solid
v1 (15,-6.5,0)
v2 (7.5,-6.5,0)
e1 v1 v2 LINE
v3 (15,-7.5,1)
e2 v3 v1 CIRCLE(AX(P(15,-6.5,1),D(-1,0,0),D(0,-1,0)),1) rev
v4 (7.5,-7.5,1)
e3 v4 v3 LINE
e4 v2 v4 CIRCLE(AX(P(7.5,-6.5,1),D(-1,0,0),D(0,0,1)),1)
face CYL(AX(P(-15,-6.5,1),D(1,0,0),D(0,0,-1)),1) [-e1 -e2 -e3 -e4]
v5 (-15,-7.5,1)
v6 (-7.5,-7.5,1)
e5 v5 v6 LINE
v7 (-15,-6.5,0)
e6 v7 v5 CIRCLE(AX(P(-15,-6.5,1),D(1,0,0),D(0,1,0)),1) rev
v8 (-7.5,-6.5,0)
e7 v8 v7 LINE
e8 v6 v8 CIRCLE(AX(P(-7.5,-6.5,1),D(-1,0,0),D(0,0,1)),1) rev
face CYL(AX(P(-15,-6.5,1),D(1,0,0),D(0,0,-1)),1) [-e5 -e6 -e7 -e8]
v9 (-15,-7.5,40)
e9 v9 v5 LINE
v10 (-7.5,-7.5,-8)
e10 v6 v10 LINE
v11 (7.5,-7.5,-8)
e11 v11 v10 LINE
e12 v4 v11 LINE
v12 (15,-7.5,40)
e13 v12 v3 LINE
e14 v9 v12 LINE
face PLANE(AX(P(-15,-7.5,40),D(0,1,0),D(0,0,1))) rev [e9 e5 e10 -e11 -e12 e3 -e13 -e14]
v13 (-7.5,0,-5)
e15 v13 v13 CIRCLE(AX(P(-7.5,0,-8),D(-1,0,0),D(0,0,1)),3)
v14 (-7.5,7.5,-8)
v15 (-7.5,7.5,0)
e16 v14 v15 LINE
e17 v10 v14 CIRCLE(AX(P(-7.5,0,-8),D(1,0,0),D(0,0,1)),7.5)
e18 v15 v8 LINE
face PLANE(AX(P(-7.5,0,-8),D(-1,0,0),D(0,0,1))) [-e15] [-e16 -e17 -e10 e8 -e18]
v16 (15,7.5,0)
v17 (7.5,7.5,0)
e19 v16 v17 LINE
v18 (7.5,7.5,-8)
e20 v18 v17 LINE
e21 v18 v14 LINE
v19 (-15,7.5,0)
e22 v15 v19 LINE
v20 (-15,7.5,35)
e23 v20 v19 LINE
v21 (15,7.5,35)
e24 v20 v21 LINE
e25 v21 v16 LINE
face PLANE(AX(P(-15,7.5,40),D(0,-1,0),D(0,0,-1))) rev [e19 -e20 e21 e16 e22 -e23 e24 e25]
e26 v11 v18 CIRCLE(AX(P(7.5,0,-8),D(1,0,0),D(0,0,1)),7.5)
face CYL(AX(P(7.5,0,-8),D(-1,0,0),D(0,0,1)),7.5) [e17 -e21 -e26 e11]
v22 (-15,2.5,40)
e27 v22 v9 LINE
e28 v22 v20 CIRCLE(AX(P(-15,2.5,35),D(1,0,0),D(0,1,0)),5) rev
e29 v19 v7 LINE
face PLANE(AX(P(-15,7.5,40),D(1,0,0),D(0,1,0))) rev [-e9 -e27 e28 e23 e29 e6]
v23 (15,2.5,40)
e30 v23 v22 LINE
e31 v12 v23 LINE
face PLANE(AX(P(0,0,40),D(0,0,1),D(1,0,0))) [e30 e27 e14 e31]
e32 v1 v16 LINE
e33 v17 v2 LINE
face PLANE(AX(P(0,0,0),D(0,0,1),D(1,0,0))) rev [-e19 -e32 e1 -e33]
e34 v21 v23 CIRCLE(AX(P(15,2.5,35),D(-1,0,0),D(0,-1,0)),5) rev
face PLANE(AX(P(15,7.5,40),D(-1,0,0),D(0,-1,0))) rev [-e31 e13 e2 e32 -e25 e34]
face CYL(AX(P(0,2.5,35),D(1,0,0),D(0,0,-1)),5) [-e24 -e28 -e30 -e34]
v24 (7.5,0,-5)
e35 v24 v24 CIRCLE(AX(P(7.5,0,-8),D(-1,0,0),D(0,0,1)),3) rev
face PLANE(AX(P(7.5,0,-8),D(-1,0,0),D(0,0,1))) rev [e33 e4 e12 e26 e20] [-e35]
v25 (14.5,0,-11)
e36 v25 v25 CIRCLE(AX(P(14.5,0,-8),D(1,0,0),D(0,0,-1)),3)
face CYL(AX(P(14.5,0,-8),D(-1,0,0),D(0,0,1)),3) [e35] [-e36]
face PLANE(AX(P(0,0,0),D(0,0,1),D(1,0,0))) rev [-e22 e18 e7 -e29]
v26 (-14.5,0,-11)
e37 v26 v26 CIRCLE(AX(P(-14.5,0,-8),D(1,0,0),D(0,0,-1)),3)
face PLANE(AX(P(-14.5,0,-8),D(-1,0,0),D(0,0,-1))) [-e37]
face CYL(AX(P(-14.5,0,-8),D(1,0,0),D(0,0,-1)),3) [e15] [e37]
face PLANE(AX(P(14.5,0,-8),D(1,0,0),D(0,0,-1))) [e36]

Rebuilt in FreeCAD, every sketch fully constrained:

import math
import FreeCAD as App
import Part
import Sketcher

V = App.Vector
Q = App.Units.Quantity


def edges_at(feature, points):
    """Names of the edges that pass closest to the given points."""
    edges = feature.Shape.Edges
    near = lambda p: min(range(len(edges)), key=lambda i: edges[i].distToShape(Part.Vertex(*p))[0])
    return sorted({f"Edge{near(p) + 1}" for p in points})


def add_polygon(sketch, points):
    """Adds a closed chain of lines whose ends are joined by coincident constraints."""
    first, n = sketch.GeometryCount, len(points)
    for a, b in zip(points, points[1:] + points[:1]):
        sketch.addGeometry(Part.LineSegment(App.Vector(*a, 0), App.Vector(*b, 0)), False)
    for i in range(n):
        sketch.addConstraint(Sketcher.Constraint("Coincident", first + i, 2, first + (i + 1) % n, 1))

doc = App.newDocument("Part")
body = doc.addObject("PartDesign::Body", "Body")

# Sketch on XY plane
sketch1 = body.newObject("Sketcher::SketchObject", "Sketch")
sketch1.AttachmentSupport = (doc.getObject("XY_Plane"), [""])
sketch1.MapMode = "FlatFace"
add_polygon(sketch1, [(-15, 8), (-15, -8), (15, -8), (15, 8)])  # lines 0-3
sketch1.addConstraint([
    Sketcher.Constraint("Vertical", 0),
    Sketcher.Constraint("Horizontal", 1),
    Sketcher.Constraint("Vertical", 2),
    Sketcher.Constraint("Horizontal", 3),
    Sketcher.Constraint("Symmetric", 0, 2, 2, 2, -1, 1),
    Sketcher.Constraint("DistanceX", 1, 1, 1, 2, Q("30 mm")),
    Sketcher.Constraint("DistanceY", 0, 2, 0, 1, Q("15 mm")),
])
pad1 = body.newObject("PartDesign::Pad", "Pad")
pad1.Profile = sketch1
pad1.Length = 40

# Sketch on YZ plane
sketch2 = body.newObject("Sketcher::SketchObject", "Sketch001")
sketch2.AttachmentSupport = (doc.getObject("YZ_Plane"), [""])
sketch2.MapMode = "FlatFace"
sketch2.addGeometry([
    Part.LineSegment(V(8, -8, 0), V(8, 0, 0)),
    Part.LineSegment(V(8, 0, 0), V(-8, 0, 0)),
    Part.LineSegment(V(-8, 0, 0), V(-8, -8, 0)),
    Part.ArcOfCircle(Part.Circle(V(0, -8, 0), V(0, 0, 1), 8), math.radians(180), math.radians(360)),
], False)
sketch2.addConstraint([
    Sketcher.Constraint("Coincident", 0, 2, 1, 1),
    Sketcher.Constraint("Coincident", 1, 2, 2, 1),
    Sketcher.Constraint("Tangent", 2, 2, 3, 1),
    Sketcher.Constraint("Tangent", 3, 2, 0, 1),
    Sketcher.Constraint("Vertical", 0),
    Sketcher.Constraint("Horizontal", 1),
    Sketcher.Constraint("Vertical", 2),
    Sketcher.Constraint("Symmetric", 0, 2, 1, 2, -1, 1),
    Sketcher.Constraint("Radius", 3, Q("7.5 mm")),
    Sketcher.Constraint("DistanceY", 0, 1, 0, 2, Q("8 mm")),
])
pad2 = body.newObject("PartDesign::Pad", "Pad001")
pad2.Profile = sketch2
pad2.Length = 15
pad2.Midplane = True

# Sketch on YZ plane
sketch3 = body.newObject("Sketcher::SketchObject", "Sketch002")
sketch3.AttachmentSupport = (doc.getObject("YZ_Plane"), [""])
sketch3.MapMode = "FlatFace"
sketch3.AttachmentOffset = App.Placement(V(0, 0, 7.5), App.Rotation())
sketch3.addGeometry(Part.Circle(V(0, -8, 0), V(0, 0, 1), 3), False)
sketch3.addConstraint([
    Sketcher.Constraint("PointOnObject", 0, 3, -2),
    Sketcher.Constraint("Diameter", 0, Q("6 mm")),
    Sketcher.Constraint("DistanceY", 0, 3, -1, 1, Q("8 mm")),
])
pad3 = body.newObject("PartDesign::Pad", "Pad002")
pad3.Profile = sketch3
pad3.Length = 7
doc.recompute()

mirrored = body.newObject("PartDesign::Mirrored", "Mirrored")
mirrored.Originals = [pad3]
mirrored.MirrorPlane = (doc.getObject("YZ_Plane"), [""])
body.Tip = mirrored
doc.recompute()

fillet = body.newObject("PartDesign::Fillet", "Fillet")
fillet.Base = (mirrored, edges_at(mirrored, [(0, 7.5, 40)]))
fillet.Radius = 5
doc.recompute()

fillet2 = body.newObject("PartDesign::Fillet", "Fillet001")
fillet2.Base = (fillet, edges_at(fillet, [(11.25, -7.5, 0), (-11.25, -7.5, 0)]))
fillet2.Radius = 1

doc.recompute()
